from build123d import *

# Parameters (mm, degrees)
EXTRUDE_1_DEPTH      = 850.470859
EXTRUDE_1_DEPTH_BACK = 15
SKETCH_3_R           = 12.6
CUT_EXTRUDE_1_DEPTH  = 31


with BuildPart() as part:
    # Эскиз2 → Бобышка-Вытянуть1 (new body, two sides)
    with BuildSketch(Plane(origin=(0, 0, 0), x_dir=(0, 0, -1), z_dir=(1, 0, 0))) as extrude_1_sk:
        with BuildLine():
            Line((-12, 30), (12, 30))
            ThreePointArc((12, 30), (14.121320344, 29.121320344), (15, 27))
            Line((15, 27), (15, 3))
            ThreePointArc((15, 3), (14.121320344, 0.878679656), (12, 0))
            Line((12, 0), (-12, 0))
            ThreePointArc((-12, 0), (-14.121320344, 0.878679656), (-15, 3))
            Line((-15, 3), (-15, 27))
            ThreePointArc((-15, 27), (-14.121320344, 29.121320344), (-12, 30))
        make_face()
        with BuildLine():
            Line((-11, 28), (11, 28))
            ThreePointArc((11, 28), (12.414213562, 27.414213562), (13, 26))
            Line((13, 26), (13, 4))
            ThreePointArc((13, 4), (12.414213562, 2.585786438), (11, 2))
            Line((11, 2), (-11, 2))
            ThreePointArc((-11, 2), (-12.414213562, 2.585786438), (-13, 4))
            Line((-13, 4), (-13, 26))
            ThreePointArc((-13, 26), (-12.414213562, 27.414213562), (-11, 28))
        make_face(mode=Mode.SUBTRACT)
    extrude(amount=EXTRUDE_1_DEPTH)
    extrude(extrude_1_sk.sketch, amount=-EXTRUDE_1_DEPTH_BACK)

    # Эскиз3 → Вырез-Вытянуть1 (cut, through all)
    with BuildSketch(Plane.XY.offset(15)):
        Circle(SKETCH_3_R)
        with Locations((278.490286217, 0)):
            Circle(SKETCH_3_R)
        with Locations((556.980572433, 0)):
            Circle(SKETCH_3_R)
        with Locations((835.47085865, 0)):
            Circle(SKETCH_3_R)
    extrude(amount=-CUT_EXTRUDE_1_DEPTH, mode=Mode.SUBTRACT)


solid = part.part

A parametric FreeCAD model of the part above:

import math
import FreeCAD as App
import Part
import Sketcher

V = App.Vector

doc = App.newDocument("Part")
body = doc.addObject("PartDesign::Body", "Body")

# Sketch on YZ plane
sketch1 = body.newObject("Sketcher::SketchObject", "Sketch")
sketch1.AttachmentSupport = (doc.getObject("YZ_Plane"), [""])
sketch1.MapMode = "FlatFace"
sketch1.addGeometry([
    Part.LineSegment(V(30, -12, 0), V(30, 12, 0)),  # 0
    Part.ArcOfCircle(Part.Circle(V(27, 12, 0), V(0, 0, 1), 3), math.radians(0), math.radians(90)),  # 1
    Part.LineSegment(V(27, 15, 0), V(3, 15, 0)),  # 2
    Part.ArcOfCircle(Part.Circle(V(3, 12, 0), V(0, 0, 1), 3), math.radians(90), math.radians(180)),  # 3
    Part.LineSegment(V(0, 12, 0), V(0, -12, 0)),  # 4
    Part.ArcOfCircle(Part.Circle(V(3, -12, 0), V(0, 0, 1), 3), math.radians(180), math.radians(270)),  # 5
    Part.LineSegment(V(3, -15, 0), V(27, -15, 0)),  # 6
    Part.ArcOfCircle(Part.Circle(V(27, -12, 0), V(0, 0, 1), 3), math.radians(-90), math.radians(0)),  # 7
    Part.LineSegment(V(28, 11, 0), V(28, -11, 0)),  # 8
    Part.ArcOfCircle(Part.Circle(V(26, -11, 0), V(0, 0, 1), 2), math.radians(-90), math.radians(0)),  # 9
    Part.LineSegment(V(26, -13, 0), V(4, -13, 0)),  # 10
    Part.ArcOfCircle(Part.Circle(V(4, -11, 0), V(0, 0, 1), 2), math.radians(-180), math.radians(-90)),  # 11
    Part.LineSegment(V(2, -11, 0), V(2, 11, 0)),  # 12
    Part.ArcOfCircle(Part.Circle(V(4, 11, 0), V(0, 0, 1), 2), math.radians(90), math.radians(180)),  # 13
    Part.LineSegment(V(4, 13, 0), V(26, 13, 0)),  # 14
    Part.ArcOfCircle(Part.Circle(V(26, 11, 0), V(0, 0, 1), 2), math.radians(0), math.radians(90)),  # 15
], False)
sketch1.addConstraint([
    Sketcher.Constraint("Tangent", 0, 2, 1, 1),
    Sketcher.Constraint("Tangent", 1, 2, 2, 1),
    Sketcher.Constraint("Tangent", 2, 2, 3, 1),
    Sketcher.Constraint("Tangent", 3, 2, 4, 1),
    Sketcher.Constraint("Tangent", 4, 2, 5, 1),
    Sketcher.Constraint("Tangent", 5, 2, 6, 1),
    Sketcher.Constraint("Tangent", 6, 2, 7, 1),
    Sketcher.Constraint("Tangent", 7, 2, 0, 1),
    Sketcher.Constraint("Tangent", 8, 2, 9, 2),
    Sketcher.Constraint("Tangent", 9, 1, 10, 1),
    Sketcher.Constraint("Tangent", 10, 2, 11, 2),
    Sketcher.Constraint("Tangent", 11, 1, 12, 1),
    Sketcher.Constraint("Tangent", 12, 2, 13, 2),
    Sketcher.Constraint("Tangent", 13, 1, 14, 1),
    Sketcher.Constraint("Tangent", 14, 2, 15, 2),
    Sketcher.Constraint("Tangent", 15, 1, 8, 1),
    Sketcher.Constraint("Vertical", 0),
    Sketcher.Constraint("Horizontal", 2),
    Sketcher.Constraint("Vertical", 4),
    Sketcher.Constraint("Horizontal", 6),
    Sketcher.Constraint("Vertical", 8),
    Sketcher.Constraint("Horizontal", 10),
    Sketcher.Constraint("Vertical", 12),
    Sketcher.Constraint("Horizontal", 14),
    Sketcher.Constraint("Equal", 1, 3),
    Sketcher.Constraint("Equal", 3, 5),
    Sketcher.Constraint("Equal", 5, 7),
    Sketcher.Constraint("Equal", 9, 11),
    Sketcher.Constraint("Equal", 11, 13),
    Sketcher.Constraint("Equal", 13, 15),
    Sketcher.Constraint("Symmetric", 3, 2, 4, 2, -1, 1),
    Sketcher.Constraint("Equal", 6, 0),
    Sketcher.Constraint("Equal", 14, 8),
    Sketcher.Constraint("Radius", 1, 3.0),
    Sketcher.Constraint("Radius", 9, 2.0),
    Sketcher.Constraint("DistanceX", 2, 2, 2, 1, 24.0),
    Sketcher.Constraint("DistanceX", 10, 2, 10, 1, 22.0),
    Sketcher.Constraint("DistanceX", -1, 1, 9, 3, 26.0),
    Sketcher.Constraint("DistanceY", 9, 3, -1, 1, 11.0),
])
pad1 = body.newObject("PartDesign::Pad", "Pad")
pad1.Profile = sketch1
pad1.Type = "TwoLengths"
pad1.Length = 850.470859
pad1.Length2 = 15

# Sketch on XY plane
sketch2 = body.newObject("Sketcher::SketchObject", "Sketch001")
sketch2.AttachmentSupport = (doc.getObject("XY_Plane"), [""])
sketch2.MapMode = "FlatFace"
sketch2.AttachmentOffset = App.Placement(V(0, 0, 15), App.Rotation())
sketch2.addGeometry([
    Part.Circle(V(0, 0, 0), V(0, 0, 1), 13),
    Part.Circle(V(278, 0, 0), V(0, 0, 1), 13),
    Part.Circle(V(557, 0, 0), V(0, 0, 1), 13),
    Part.Circle(V(835, 0, 0), V(0, 0, 1), 13),
], False)
sketch2.addConstraint([
    Sketcher.Constraint("Coincident", 0, 3, -1, 1),
    Sketcher.Constraint("Equal", 0, 1),
    Sketcher.Constraint("Equal", 1, 2),
    Sketcher.Constraint("Equal", 2, 3),
    Sketcher.Constraint("PointOnObject", 1, 3, -1),
    Sketcher.Constraint("PointOnObject", 2, 3, -1),
    Sketcher.Constraint("PointOnObject", 3, 3, -1),
    Sketcher.Constraint("Diameter", 0, 25.2),
    Sketcher.Constraint("DistanceX", -1, 1, 3, 3, 835.470859),
    Sketcher.Constraint("DistanceX", -1, 1, 1, 3, 278.490286),
    Sketcher.Constraint("DistanceX", -1, 1, 2, 3, 556.980572),
])
pocket1 = body.newObject("PartDesign::Pocket", "Pocket")
pocket1.Profile = sketch2
pocket1.Type = "ThroughAll"

doc.recompute()
